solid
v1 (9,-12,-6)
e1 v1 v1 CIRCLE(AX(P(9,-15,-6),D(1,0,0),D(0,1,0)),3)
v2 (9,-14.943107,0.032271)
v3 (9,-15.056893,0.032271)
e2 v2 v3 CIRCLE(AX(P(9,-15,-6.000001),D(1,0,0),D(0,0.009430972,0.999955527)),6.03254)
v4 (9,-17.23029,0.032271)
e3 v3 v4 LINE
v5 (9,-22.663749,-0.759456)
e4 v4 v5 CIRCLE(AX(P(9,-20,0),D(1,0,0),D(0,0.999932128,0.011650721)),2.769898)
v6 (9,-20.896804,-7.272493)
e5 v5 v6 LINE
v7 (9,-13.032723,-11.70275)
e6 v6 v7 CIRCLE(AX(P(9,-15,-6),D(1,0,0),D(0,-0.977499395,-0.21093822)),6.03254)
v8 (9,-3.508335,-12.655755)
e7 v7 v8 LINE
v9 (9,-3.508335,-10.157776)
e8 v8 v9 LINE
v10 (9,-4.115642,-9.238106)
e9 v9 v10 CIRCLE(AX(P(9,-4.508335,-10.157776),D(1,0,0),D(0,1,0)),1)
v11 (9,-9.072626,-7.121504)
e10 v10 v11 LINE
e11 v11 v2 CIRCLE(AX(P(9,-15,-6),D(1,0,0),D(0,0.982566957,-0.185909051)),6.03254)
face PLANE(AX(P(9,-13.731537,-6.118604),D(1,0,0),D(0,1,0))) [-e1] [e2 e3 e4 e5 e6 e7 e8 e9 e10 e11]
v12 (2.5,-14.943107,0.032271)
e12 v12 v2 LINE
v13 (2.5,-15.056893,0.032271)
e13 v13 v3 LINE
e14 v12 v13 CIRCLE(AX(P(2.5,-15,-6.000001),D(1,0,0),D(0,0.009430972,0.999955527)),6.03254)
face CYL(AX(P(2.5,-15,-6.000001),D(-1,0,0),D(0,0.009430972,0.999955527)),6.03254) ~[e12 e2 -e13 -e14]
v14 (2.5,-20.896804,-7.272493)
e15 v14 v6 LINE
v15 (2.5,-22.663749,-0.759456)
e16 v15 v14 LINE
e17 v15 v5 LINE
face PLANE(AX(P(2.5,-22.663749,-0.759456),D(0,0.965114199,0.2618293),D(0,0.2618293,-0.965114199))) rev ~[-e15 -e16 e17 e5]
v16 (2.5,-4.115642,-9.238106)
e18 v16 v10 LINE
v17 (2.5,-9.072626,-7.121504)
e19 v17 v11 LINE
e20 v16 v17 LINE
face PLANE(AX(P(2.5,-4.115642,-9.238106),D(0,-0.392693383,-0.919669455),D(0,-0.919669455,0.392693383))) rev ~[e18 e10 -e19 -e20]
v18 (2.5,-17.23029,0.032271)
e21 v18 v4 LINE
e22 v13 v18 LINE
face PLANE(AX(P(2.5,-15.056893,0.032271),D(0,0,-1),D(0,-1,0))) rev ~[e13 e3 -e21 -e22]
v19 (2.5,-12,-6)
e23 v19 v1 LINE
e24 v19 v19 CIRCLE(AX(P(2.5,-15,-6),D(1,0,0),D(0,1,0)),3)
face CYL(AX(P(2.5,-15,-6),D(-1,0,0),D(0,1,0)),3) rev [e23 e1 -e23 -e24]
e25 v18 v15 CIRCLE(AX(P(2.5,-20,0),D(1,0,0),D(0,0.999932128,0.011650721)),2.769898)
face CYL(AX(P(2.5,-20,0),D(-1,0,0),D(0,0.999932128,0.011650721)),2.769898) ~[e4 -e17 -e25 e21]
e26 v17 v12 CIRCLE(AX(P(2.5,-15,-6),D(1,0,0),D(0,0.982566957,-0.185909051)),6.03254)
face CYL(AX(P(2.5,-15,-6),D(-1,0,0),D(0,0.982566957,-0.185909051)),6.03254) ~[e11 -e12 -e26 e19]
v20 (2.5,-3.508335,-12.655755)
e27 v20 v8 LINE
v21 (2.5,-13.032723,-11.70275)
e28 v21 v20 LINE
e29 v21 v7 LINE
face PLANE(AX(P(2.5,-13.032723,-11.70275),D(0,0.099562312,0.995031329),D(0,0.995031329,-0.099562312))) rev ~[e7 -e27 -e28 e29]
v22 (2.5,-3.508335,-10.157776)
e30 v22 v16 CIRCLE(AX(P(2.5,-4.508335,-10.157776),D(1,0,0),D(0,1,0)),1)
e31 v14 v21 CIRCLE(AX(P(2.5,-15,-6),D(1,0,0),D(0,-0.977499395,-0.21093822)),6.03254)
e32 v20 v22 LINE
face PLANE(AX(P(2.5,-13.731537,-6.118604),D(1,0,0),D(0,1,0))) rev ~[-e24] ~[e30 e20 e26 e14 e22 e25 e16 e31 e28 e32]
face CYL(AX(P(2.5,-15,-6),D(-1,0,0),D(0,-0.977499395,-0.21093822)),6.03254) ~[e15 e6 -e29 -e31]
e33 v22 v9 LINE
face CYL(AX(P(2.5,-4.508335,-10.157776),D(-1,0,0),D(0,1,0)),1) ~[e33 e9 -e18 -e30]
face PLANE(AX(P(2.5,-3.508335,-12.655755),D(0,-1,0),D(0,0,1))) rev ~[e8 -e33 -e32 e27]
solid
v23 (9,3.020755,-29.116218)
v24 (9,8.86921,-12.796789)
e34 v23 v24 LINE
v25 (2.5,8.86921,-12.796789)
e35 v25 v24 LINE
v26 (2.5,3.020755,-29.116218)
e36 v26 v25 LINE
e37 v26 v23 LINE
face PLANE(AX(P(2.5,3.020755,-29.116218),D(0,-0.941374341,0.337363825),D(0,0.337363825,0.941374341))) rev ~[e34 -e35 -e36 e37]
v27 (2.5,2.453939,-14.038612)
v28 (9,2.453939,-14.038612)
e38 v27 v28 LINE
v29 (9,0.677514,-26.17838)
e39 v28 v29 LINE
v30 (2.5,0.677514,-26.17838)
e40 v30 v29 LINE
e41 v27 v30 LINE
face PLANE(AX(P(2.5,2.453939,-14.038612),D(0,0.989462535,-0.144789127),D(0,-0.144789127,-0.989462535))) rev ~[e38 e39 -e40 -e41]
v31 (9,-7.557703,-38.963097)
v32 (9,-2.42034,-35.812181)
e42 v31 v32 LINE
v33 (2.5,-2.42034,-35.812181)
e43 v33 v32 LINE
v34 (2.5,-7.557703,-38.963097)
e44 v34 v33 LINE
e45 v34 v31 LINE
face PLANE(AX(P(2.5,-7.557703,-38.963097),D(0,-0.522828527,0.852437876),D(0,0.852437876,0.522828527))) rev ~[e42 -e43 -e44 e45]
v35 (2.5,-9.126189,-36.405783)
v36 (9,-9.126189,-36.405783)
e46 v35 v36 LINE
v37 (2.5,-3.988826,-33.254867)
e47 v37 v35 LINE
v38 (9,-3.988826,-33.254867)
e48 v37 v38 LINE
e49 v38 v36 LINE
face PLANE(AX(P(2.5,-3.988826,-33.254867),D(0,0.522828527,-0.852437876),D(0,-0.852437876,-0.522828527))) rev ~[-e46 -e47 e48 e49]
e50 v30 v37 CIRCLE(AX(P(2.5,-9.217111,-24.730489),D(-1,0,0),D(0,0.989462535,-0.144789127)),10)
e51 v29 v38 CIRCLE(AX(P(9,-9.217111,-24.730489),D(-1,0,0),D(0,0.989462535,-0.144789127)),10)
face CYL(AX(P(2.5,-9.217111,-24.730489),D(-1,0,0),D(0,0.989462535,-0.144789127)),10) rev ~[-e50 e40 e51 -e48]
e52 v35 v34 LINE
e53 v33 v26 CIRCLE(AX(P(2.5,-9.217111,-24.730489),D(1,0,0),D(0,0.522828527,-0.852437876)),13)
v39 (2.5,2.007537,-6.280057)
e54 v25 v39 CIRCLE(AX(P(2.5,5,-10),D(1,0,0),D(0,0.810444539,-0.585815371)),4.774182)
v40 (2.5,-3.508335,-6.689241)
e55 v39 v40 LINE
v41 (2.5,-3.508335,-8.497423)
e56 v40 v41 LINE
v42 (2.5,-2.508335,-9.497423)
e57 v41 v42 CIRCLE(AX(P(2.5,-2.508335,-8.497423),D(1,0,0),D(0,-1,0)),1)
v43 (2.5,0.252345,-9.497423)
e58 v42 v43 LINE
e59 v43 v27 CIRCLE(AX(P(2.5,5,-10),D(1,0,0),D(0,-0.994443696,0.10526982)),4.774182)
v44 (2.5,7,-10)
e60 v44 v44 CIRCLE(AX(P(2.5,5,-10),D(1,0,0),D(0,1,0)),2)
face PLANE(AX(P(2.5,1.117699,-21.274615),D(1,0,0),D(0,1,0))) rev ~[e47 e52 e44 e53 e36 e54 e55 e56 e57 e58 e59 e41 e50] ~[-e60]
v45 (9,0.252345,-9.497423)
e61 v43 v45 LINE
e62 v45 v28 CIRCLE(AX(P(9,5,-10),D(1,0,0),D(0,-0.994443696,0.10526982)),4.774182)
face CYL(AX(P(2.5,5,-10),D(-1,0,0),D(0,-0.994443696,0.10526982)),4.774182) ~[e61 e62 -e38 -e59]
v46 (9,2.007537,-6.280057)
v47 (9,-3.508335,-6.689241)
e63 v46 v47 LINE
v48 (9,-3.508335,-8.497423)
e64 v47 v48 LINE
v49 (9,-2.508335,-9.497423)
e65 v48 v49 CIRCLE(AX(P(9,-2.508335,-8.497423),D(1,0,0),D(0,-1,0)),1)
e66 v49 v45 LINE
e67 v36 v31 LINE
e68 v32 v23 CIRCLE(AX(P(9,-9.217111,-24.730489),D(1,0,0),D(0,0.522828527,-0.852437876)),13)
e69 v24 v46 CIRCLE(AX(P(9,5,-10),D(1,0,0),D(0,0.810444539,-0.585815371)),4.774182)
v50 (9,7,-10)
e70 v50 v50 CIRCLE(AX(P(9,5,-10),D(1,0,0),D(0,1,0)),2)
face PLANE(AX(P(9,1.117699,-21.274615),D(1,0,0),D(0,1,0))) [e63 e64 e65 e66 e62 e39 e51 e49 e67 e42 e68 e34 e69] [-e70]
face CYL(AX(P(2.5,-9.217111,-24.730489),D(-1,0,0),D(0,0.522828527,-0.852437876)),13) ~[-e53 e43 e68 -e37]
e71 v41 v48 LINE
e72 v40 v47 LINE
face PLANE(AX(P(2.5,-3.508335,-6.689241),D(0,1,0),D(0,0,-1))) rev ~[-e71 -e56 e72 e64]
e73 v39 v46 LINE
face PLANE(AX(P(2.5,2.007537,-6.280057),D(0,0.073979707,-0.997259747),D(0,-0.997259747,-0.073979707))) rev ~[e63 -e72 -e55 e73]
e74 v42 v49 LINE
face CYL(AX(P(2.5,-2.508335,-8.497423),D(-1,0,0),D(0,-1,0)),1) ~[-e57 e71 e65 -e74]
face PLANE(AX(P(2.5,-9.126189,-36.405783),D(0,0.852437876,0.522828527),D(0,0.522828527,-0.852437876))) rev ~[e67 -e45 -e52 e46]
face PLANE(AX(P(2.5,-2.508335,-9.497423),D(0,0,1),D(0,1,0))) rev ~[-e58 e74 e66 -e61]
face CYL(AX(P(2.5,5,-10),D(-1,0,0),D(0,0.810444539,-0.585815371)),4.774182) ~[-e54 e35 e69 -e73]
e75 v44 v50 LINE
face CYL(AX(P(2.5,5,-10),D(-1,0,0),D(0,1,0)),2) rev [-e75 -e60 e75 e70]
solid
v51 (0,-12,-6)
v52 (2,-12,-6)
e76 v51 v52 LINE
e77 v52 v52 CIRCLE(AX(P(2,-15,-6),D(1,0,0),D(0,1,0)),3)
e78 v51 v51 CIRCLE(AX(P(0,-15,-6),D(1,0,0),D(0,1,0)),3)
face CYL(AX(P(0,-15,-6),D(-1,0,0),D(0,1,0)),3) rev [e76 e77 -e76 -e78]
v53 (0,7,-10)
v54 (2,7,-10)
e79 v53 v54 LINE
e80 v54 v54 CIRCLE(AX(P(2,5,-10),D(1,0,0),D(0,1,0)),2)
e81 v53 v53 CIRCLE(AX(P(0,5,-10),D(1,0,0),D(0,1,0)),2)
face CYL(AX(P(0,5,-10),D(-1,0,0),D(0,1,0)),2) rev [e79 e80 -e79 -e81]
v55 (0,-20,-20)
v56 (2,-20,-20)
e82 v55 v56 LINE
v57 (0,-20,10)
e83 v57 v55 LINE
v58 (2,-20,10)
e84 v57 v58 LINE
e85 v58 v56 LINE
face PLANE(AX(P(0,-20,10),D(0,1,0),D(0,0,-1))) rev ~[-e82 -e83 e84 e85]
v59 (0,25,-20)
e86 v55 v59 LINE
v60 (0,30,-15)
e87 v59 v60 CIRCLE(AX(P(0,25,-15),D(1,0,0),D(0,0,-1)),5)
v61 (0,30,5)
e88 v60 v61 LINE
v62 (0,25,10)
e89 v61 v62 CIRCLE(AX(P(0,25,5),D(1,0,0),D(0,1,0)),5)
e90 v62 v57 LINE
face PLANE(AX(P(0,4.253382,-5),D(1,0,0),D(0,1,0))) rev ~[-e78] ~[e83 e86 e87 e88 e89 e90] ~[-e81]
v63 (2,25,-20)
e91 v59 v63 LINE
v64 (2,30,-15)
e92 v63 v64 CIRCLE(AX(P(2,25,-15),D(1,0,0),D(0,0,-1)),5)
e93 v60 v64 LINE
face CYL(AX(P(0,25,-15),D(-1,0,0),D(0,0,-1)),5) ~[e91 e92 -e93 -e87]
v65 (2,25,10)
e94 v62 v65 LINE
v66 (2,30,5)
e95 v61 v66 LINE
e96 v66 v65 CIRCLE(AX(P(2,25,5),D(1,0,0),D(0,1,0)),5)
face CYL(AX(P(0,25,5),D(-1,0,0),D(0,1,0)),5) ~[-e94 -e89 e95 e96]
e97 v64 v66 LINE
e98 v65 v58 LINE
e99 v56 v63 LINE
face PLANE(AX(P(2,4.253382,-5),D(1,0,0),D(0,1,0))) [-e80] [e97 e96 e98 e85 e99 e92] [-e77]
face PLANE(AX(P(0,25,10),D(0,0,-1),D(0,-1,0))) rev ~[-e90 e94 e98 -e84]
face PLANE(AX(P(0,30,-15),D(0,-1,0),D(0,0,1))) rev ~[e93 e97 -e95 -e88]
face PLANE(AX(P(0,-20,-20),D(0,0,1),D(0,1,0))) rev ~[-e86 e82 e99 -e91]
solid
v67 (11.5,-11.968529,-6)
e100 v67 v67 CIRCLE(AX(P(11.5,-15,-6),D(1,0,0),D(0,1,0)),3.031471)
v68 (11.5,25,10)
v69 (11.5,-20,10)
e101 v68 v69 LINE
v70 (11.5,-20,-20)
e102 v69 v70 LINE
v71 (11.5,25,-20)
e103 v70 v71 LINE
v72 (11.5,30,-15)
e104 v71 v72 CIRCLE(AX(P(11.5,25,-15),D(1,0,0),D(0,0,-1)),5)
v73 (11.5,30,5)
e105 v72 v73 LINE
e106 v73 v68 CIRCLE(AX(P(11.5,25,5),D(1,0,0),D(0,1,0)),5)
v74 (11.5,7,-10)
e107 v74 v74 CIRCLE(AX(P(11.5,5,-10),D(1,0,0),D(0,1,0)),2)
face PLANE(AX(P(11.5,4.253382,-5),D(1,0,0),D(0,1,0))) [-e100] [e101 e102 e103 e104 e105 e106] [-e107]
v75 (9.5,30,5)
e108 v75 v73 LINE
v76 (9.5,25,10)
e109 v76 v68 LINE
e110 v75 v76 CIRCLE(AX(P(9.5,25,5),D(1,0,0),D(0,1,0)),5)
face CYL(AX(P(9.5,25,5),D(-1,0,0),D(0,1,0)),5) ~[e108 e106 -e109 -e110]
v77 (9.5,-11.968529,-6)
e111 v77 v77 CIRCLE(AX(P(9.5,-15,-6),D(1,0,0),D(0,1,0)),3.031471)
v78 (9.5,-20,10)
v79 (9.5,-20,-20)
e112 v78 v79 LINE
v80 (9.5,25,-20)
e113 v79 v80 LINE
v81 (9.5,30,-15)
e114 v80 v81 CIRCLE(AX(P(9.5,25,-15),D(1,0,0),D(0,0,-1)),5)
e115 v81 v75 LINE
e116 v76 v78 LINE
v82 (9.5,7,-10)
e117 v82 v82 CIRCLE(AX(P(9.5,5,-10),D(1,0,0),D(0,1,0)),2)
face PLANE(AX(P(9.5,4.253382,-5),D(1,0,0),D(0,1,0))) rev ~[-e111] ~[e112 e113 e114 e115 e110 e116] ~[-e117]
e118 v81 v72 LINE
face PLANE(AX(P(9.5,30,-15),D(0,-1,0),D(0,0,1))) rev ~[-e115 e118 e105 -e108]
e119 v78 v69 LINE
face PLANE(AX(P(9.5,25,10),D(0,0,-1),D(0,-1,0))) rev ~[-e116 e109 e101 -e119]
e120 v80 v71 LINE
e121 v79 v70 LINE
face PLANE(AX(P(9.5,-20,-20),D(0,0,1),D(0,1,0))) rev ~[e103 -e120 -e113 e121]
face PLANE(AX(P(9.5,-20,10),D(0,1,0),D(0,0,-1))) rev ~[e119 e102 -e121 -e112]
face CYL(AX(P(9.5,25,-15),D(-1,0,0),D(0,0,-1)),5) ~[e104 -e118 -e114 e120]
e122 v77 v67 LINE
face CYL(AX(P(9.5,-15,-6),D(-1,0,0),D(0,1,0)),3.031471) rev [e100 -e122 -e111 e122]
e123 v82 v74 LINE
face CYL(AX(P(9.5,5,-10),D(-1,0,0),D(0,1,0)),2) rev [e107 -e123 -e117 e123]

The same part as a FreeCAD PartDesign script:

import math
import FreeCAD as App
import Part
import Sketcher
from FreeCAD import Vector

doc = App.newDocument("Part")
body = doc.addObject("PartDesign::Body", "Body")

# Sketch on YZ plane
sketch1 = body.newObject("Sketcher::SketchObject", "Sketch")
sketch1.AttachmentSupport = (doc.getObject("YZ_Plane"), [""])
sketch1.MapMode = "FlatFace"
sketch1.addGeometry([
    Part.LineSegment(Vector(25, 10, 0), Vector(-20, 10, 0)),  # 0
    Part.LineSegment(Vector(-20, 10, 0), Vector(-20, -20, 0)),  # 1
    Part.LineSegment(Vector(-20, -20, 0), Vector(25, -20, 0)),  # 2
    Part.ArcOfCircle(Part.Circle(Vector(25, -15, 0), Vector(0, 0, 1), 5), math.radians(-90), math.radians(0)),  # 3
    Part.LineSegment(Vector(30, -15, 0), Vector(30, 5, 0)),  # 4
    Part.ArcOfCircle(Part.Circle(Vector(25, 5, 0), Vector(0, 0, 1), 5), math.radians(0), math.radians(90)),  # 5
    Part.Circle(Vector(5, -10, 0), Vector(0, 0, 1), 2),  # 6
    Part.Circle(Vector(-15, -6, 0), Vector(0, 0, 1), 3),  # 7
], False)
sketch1.addConstraint([
    Sketcher.Constraint("Coincident", 0, 2, 1, 1),
    Sketcher.Constraint("Coincident", 1, 2, 2, 1),
    Sketcher.Constraint("Tangent", 2, 2, 3, 1),
    Sketcher.Constraint("Tangent", 3, 2, 4, 1),
    Sketcher.Constraint("Tangent", 4, 2, 5, 1),
    Sketcher.Constraint("Tangent", 5, 2, 0, 1),
    Sketcher.Constraint("Horizontal", 0),
    Sketcher.Constraint("Vertical", 1),
    Sketcher.Constraint("Horizontal", 2),
    Sketcher.Constraint("Vertical", 4),
    Sketcher.Constraint("Equal", 3, 5),
    Sketcher.Constraint("Diameter", 6, 4.0),
    Sketcher.Constraint("Diameter", 7, 6.0),
    Sketcher.Constraint("Radius", 3, 5.0),
    Sketcher.Constraint("DistanceX", 0, 2, 0, 1, 45.0),
    Sketcher.Constraint("DistanceY", 1, 2, 1, 1, 30.0),
    Sketcher.Constraint("DistanceX", -1, 1, 3, 3, 25.0),
    Sketcher.Constraint("DistanceY", 3, 3, -1, 1, 15.0),
    Sketcher.Constraint("DistanceX", -1, 1, 6, 3, 5.0),
    Sketcher.Constraint("DistanceY", 6, 3, -1, 1, 10.0),
    Sketcher.Constraint("DistanceX", 7, 3, -1, 1, 15.0),
    Sketcher.Constraint("DistanceY", 7, 3, -1, 1, 6.0),
])
pad1 = body.newObject("PartDesign::Pad", "Pad")
pad1.Profile = sketch1
pad1.Length = 2
body2 = doc.addObject("PartDesign::Body", "Body001")

# Sketch on YZ plane
sketch2 = body2.newObject("Sketcher::SketchObject", "Sketch001")
sketch2.AttachmentSupport = (doc.getObject("YZ_Plane001"), [""])
sketch2.MapMode = "FlatFace"
sketch2.AttachmentOffset = App.Placement(Vector(0, 0, 2.5), App.Rotation())
sketch2.addGeometry([
    Part.LineSegment(Vector(-22.66, -0.76, 0), Vector(-20.9, -7.27, 0)),  # 0
    Part.ArcOfCircle(Part.Circle(Vector(-15, -6, 0), Vector(0, 0, 1), 6.03), math.radians(-168), math.radians(-71)),  # 1
    Part.LineSegment(Vector(-13.03, -11.7, 0), Vector(-3.51, -12.66, 0)),  # 2
    Part.LineSegment(Vector(-3.51, -12.66, 0), Vector(-3.51, -10.16, 0)),  # 3
    Part.ArcOfCircle(Part.Circle(Vector(-4.51, -10.16, 0), Vector(0, 0, 1), 1), math.radians(0), math.radians(67)),  # 4
    Part.LineSegment(Vector(-4.12, -9.24, 0), Vector(-9.07, -7.12, 0)),  # 5
    Part.ArcOfCircle(Part.Circle(Vector(-15, -6, 0), Vector(0, 0, 1), 6.03), math.radians(-11), math.radians(89)),  # 6
    Part.ArcOfCircle(Part.Circle(Vector(-15, -6, 0), Vector(0, 0, 1), 6.03), math.radians(89.46), math.radians(90.54)),  # 7
    Part.LineSegment(Vector(-15.06, 0.03, 0), Vector(-17.23, 0.03, 0)),  # 8
    Part.ArcOfCircle(Part.Circle(Vector(-20, 0, 0), Vector(0, 0, 1), 2.77), math.radians(1), math.radians(196)),  # 9
    Part.Circle(Vector(-15, -6, 0), Vector(0, 0, 1), 3),  # 10
], False)
sketch2.addConstraint([
    Sketcher.Constraint("Coincident", 0, 2, 1, 1),
    Sketcher.Constraint("Coincident", 1, 2, 2, 1),
    Sketcher.Constraint("Coincident", 2, 2, 3, 1),
    Sketcher.Constraint("Tangent", 3, 2, 4, 1),
    Sketcher.Constraint("Tangent", 4, 2, 5, 1),
    Sketcher.Constraint("Coincident", 5, 2, 6, 1),
    Sketcher.Constraint("Tangent", 6, 2, 7, 1),
    Sketcher.Constraint("Coincident", 7, 2, 8, 1),
    Sketcher.Constraint("Coincident", 8, 2, 9, 1),
    Sketcher.Constraint("Coincident", 9, 2, 0, 1),
    Sketcher.Constraint("Vertical", 3),
    Sketcher.Constraint("Horizontal", 8),
    Sketcher.Constraint("Coincident", 6, 3, 1, 3),
    Sketcher.Constraint("Coincident", 10, 3, 1, 3),
    Sketcher.Constraint("Equal", 1, 6),
    Sketcher.Constraint("Equal", 6, 7),
    Sketcher.Constraint("PointOnObject", 9, 3, -1),
    Sketcher.Constraint("Horizontal", 6, 2, 7, 2),
    Sketcher.Constraint("Diameter", 10, 6.0),
    Sketcher.Constraint("Radius", 4, 1.0),
    Sketcher.Constraint("DistanceX", 1, 3, -1, 1, 15.0),
    Sketcher.Constraint("DistanceY", 1, 3, -1, 1, 6.0),
    Sketcher.Constraint("DistanceX", 9, 3, -1, 1, 20.0),
    Sketcher.Constraint("Radius", 1, 6.03254),
    Sketcher.Constraint("Radius", 9, 2.769898),
    Sketcher.Constraint("DistanceY", 3, 1, 3, 2, 2.497979),
    Sketcher.Constraint("Distance", 2, 9.571948),
    Sketcher.Constraint("DistanceX", 8, 2, 8, 1, 2.173398),
    Sketcher.Constraint("DistanceY", 1, 2, -1, 1, 11.70275),
    Sketcher.Constraint("DistanceX", 4, 2, -1, 1, 4.115642),
    Sketcher.Constraint("DistanceX", 9, 2, -1, 1, 22.663749),
    Sketcher.Constraint("DistanceX", 1, 2, 4, 3, 8.524388),
    Sketcher.Constraint("Distance", 0, 6.748463),
])
pad2 = body2.newObject("PartDesign::Pad", "Pad001")
pad2.Profile = sketch2
pad2.Length = 6.5
body3 = doc.addObject("PartDesign::Body", "Body002")

# Sketch on YZ plane
sketch3 = body3.newObject("Sketcher::SketchObject", "Sketch002")
sketch3.AttachmentSupport = (doc.getObject("YZ_Plane002"), [""])
sketch3.MapMode = "FlatFace"
sketch3.AttachmentOffset = App.Placement(Vector(0, 0, 2.5), App.Rotation())
sketch3.addGeometry([
    Part.LineSegment(Vector(-2.5, -9.5, 0), Vector(0.3, -9.5, 0)),  # 0
    Part.ArcOfCircle(Part.Circle(Vector(5, -10, 0), Vector(0, 0, 1), 4.8), math.radians(174), math.radians(238)),  # 1
    Part.LineSegment(Vector(2.5, -14, 0), Vector(0.7, -26.2, 0)),  # 2
    Part.ArcOfCircle(Part.Circle(Vector(-9.2, -24.7, 0), Vector(0, 0, 1), 10), math.radians(-58), math.radians(-8)),  # 3
    Part.LineSegment(Vector(-4, -33.3, 0), Vector(-9.1, -36.4, 0)),  # 4
    Part.LineSegment(Vector(-9.1, -36.4, 0), Vector(-7.6, -39, 0)),  # 5
    Part.LineSegment(Vector(-7.6, -39, 0), Vector(-2.4, -35.8, 0)),  # 6
    Part.ArcOfCircle(Part.Circle(Vector(-9.2, -24.7, 0), Vector(0, 0, 1), 13), math.radians(-58), math.radians(-20)),  # 7
    Part.LineSegment(Vector(3, -29.1, 0), Vector(8.9, -12.8, 0)),  # 8
    Part.ArcOfCircle(Part.Circle(Vector(5, -10, 0), Vector(0, 0, 1), 4.8), math.radians(-36), math.radians(129)),  # 9
    Part.LineSegment(Vector(2, -6.3, 0), Vector(-3.5, -6.7, 0)),  # 10
    Part.LineSegment(Vector(-3.5, -6.7, 0), Vector(-3.5, -8.5, 0)),  # 11
    Part.ArcOfCircle(Part.Circle(Vector(-2.5, -8.5, 0), Vector(0, 0, 1), 1), math.radians(180), math.radians(270)),  # 12
    Part.Circle(Vector(5, -10, 0), Vector(0, 0, 1), 2),  # 13
], False)
sketch3.addConstraint([
    Sketcher.Constraint("Coincident", 0, 2, 1, 1),
    Sketcher.Constraint("Coincident", 1, 2, 2, 1),
    Sketcher.Constraint("Tangent", 2, 2, 3, 2),
    Sketcher.Constraint("Tangent", 3, 1, 4, 1),
    Sketcher.Constraint("Coincident", 4, 2, 5, 1),
    Sketcher.Constraint("Coincident", 5, 2, 6, 1),
    Sketcher.Constraint("Tangent", 6, 2, 7, 1),
    Sketcher.Constraint("Tangent", 7, 2, 8, 1),
    Sketcher.Constraint("Coincident", 8, 2, 9, 1),
    Sketcher.Constraint("Coincident", 9, 2, 10, 1),
    Sketcher.Constraint("Coincident", 10, 2, 11, 1),
    Sketcher.Constraint("Tangent", 11, 2, 12, 1),
    Sketcher.Constraint("Tangent", 12, 2, 0, 1),
    Sketcher.Constraint("Horizontal", 0),
    Sketcher.Constraint("Vertical", 11),
    Sketcher.Constraint("Coincident", 7, 3, 3, 3),
    Sketcher.Constraint("Coincident", 9, 3, 1, 3),
    Sketcher.Constraint("Coincident", 13, 3, 1, 3),
    Sketcher.Constraint("Equal", 1, 9),
    Sketcher.Constraint("Perpendicular", 4, 5),
    Sketcher.Constraint("Perpendicular", 5, 6),
    Sketcher.Constraint("Diameter", 13, 4.0),
    Sketcher.Constraint("Radius", 3, 10.0),
    Sketcher.Constraint("Radius", 7, 13.0),
    Sketcher.Constraint("Radius", 12, 1.0),
    Sketcher.Constraint("DistanceX", -1, 1, 1, 3, 5.0),
    Sketcher.Constraint("DistanceY", 1, 3, -1, 1, 10.0),
    Sketcher.Constraint("Radius", 1, 4.774182),
    Sketcher.Constraint("DistanceX", 0, 1, 0, 2, 2.76068),
    Sketcher.Constraint("DistanceY", 11, 2, 11, 1, 1.808182),
    Sketcher.Constraint("DistanceY", 4, 2, 6, 2, 0.593602),
    Sketcher.Constraint("DistanceY", 6, 2, 2, 2, 9.633801),
    Sketcher.Constraint("Distance", 4, 6.026671),
    Sketcher.Constraint("Distance", 8, 17.335749),
    Sketcher.Constraint("Distance", 10, 5.531028),
    Sketcher.Constraint("DistanceX", 3, 3, -1, 1, 9.217111),
    Sketcher.Constraint("DistanceY", 3, 3, -1, 1, 24.730489),
    Sketcher.Constraint("DistanceY", 10, 2, -1, 1, 6.689241),
])
pad3 = body3.newObject("PartDesign::Pad", "Pad002")
pad3.Profile = sketch3
pad3.Length = 6.5
body4 = doc.addObject("PartDesign::Body", "Body003")

# Sketch on YZ plane
sketch4 = body4.newObject("Sketcher::SketchObject", "Sketch003")
sketch4.AttachmentSupport = (doc.getObject("YZ_Plane003"), [""])
sketch4.MapMode = "FlatFace"
sketch4.AttachmentOffset = App.Placement(Vector(0, 0, 9.5), App.Rotation())
sketch4.addGeometry([
    Part.LineSegment(Vector(25, 10, 0), Vector(-20, 10, 0)),  # 0
    Part.LineSegment(Vector(-20, 10, 0), Vector(-20, -20, 0)),  # 1
    Part.LineSegment(Vector(-20, -20, 0), Vector(25, -20, 0)),  # 2
    Part.ArcOfCircle(Part.Circle(Vector(25, -15, 0), Vector(0, 0, 1), 5), math.radians(-90), math.radians(0)),  # 3
    Part.LineSegment(Vector(30, -15, 0), Vector(30, 5, 0)),  # 4
    Part.ArcOfCircle(Part.Circle(Vector(25, 5, 0), Vector(0, 0, 1), 5), math.radians(0), math.radians(90)),  # 5
    Part.Circle(Vector(5, -10, 0), Vector(0, 0, 1), 2),  # 6
    Part.Circle(Vector(-15, -6, 0), Vector(0, 0, 1), 3),  # 7
], False)
sketch4.addConstraint([
    Sketcher.Constraint("Coincident", 0, 2, 1, 1),
    Sketcher.Constraint("Coincident", 1, 2, 2, 1),
    Sketcher.Constraint("Tangent", 2, 2, 3, 1),
    Sketcher.Constraint("Tangent", 3, 2, 4, 1),
    Sketcher.Constraint("Tangent", 4, 2, 5, 1),
    Sketcher.Constraint("Tangent", 5, 2, 0, 1),
    Sketcher.Constraint("Horizontal", 0),
    Sketcher.Constraint("Vertical", 1),
    Sketcher.Constraint("Horizontal", 2),
    Sketcher.Constraint("Vertical", 4),
    Sketcher.Constraint("Equal", 3, 5),
    Sketcher.Constraint("Diameter", 6, 4.0),
    Sketcher.Constraint("Radius", 3, 5.0),
    Sketcher.Constraint("DistanceX", 0, 2, 0, 1, 45.0),
    Sketcher.Constraint("DistanceY", 1, 2, 1, 1, 30.0),
    Sketcher.Constraint("DistanceX", -1, 1, 3, 3, 25.0),
    Sketcher.Constraint("DistanceY", 3, 3, -1, 1, 15.0),
    Sketcher.Constraint("DistanceX", -1, 1, 6, 3, 5.0),
    Sketcher.Constraint("DistanceY", 6, 3, -1, 1, 10.0),
    Sketcher.Constraint("DistanceX", 7, 3, -1, 1, 15.0),
    Sketcher.Constraint("DistanceY", 7, 3, -1, 1, 6.0),
    Sketcher.Constraint("Diameter", 7, 6.062942),
])
pad4 = body4.newObject("PartDesign::Pad", "Pad003")
pad4.Profile = sketch4
pad4.Length = 2

doc.recompute()
